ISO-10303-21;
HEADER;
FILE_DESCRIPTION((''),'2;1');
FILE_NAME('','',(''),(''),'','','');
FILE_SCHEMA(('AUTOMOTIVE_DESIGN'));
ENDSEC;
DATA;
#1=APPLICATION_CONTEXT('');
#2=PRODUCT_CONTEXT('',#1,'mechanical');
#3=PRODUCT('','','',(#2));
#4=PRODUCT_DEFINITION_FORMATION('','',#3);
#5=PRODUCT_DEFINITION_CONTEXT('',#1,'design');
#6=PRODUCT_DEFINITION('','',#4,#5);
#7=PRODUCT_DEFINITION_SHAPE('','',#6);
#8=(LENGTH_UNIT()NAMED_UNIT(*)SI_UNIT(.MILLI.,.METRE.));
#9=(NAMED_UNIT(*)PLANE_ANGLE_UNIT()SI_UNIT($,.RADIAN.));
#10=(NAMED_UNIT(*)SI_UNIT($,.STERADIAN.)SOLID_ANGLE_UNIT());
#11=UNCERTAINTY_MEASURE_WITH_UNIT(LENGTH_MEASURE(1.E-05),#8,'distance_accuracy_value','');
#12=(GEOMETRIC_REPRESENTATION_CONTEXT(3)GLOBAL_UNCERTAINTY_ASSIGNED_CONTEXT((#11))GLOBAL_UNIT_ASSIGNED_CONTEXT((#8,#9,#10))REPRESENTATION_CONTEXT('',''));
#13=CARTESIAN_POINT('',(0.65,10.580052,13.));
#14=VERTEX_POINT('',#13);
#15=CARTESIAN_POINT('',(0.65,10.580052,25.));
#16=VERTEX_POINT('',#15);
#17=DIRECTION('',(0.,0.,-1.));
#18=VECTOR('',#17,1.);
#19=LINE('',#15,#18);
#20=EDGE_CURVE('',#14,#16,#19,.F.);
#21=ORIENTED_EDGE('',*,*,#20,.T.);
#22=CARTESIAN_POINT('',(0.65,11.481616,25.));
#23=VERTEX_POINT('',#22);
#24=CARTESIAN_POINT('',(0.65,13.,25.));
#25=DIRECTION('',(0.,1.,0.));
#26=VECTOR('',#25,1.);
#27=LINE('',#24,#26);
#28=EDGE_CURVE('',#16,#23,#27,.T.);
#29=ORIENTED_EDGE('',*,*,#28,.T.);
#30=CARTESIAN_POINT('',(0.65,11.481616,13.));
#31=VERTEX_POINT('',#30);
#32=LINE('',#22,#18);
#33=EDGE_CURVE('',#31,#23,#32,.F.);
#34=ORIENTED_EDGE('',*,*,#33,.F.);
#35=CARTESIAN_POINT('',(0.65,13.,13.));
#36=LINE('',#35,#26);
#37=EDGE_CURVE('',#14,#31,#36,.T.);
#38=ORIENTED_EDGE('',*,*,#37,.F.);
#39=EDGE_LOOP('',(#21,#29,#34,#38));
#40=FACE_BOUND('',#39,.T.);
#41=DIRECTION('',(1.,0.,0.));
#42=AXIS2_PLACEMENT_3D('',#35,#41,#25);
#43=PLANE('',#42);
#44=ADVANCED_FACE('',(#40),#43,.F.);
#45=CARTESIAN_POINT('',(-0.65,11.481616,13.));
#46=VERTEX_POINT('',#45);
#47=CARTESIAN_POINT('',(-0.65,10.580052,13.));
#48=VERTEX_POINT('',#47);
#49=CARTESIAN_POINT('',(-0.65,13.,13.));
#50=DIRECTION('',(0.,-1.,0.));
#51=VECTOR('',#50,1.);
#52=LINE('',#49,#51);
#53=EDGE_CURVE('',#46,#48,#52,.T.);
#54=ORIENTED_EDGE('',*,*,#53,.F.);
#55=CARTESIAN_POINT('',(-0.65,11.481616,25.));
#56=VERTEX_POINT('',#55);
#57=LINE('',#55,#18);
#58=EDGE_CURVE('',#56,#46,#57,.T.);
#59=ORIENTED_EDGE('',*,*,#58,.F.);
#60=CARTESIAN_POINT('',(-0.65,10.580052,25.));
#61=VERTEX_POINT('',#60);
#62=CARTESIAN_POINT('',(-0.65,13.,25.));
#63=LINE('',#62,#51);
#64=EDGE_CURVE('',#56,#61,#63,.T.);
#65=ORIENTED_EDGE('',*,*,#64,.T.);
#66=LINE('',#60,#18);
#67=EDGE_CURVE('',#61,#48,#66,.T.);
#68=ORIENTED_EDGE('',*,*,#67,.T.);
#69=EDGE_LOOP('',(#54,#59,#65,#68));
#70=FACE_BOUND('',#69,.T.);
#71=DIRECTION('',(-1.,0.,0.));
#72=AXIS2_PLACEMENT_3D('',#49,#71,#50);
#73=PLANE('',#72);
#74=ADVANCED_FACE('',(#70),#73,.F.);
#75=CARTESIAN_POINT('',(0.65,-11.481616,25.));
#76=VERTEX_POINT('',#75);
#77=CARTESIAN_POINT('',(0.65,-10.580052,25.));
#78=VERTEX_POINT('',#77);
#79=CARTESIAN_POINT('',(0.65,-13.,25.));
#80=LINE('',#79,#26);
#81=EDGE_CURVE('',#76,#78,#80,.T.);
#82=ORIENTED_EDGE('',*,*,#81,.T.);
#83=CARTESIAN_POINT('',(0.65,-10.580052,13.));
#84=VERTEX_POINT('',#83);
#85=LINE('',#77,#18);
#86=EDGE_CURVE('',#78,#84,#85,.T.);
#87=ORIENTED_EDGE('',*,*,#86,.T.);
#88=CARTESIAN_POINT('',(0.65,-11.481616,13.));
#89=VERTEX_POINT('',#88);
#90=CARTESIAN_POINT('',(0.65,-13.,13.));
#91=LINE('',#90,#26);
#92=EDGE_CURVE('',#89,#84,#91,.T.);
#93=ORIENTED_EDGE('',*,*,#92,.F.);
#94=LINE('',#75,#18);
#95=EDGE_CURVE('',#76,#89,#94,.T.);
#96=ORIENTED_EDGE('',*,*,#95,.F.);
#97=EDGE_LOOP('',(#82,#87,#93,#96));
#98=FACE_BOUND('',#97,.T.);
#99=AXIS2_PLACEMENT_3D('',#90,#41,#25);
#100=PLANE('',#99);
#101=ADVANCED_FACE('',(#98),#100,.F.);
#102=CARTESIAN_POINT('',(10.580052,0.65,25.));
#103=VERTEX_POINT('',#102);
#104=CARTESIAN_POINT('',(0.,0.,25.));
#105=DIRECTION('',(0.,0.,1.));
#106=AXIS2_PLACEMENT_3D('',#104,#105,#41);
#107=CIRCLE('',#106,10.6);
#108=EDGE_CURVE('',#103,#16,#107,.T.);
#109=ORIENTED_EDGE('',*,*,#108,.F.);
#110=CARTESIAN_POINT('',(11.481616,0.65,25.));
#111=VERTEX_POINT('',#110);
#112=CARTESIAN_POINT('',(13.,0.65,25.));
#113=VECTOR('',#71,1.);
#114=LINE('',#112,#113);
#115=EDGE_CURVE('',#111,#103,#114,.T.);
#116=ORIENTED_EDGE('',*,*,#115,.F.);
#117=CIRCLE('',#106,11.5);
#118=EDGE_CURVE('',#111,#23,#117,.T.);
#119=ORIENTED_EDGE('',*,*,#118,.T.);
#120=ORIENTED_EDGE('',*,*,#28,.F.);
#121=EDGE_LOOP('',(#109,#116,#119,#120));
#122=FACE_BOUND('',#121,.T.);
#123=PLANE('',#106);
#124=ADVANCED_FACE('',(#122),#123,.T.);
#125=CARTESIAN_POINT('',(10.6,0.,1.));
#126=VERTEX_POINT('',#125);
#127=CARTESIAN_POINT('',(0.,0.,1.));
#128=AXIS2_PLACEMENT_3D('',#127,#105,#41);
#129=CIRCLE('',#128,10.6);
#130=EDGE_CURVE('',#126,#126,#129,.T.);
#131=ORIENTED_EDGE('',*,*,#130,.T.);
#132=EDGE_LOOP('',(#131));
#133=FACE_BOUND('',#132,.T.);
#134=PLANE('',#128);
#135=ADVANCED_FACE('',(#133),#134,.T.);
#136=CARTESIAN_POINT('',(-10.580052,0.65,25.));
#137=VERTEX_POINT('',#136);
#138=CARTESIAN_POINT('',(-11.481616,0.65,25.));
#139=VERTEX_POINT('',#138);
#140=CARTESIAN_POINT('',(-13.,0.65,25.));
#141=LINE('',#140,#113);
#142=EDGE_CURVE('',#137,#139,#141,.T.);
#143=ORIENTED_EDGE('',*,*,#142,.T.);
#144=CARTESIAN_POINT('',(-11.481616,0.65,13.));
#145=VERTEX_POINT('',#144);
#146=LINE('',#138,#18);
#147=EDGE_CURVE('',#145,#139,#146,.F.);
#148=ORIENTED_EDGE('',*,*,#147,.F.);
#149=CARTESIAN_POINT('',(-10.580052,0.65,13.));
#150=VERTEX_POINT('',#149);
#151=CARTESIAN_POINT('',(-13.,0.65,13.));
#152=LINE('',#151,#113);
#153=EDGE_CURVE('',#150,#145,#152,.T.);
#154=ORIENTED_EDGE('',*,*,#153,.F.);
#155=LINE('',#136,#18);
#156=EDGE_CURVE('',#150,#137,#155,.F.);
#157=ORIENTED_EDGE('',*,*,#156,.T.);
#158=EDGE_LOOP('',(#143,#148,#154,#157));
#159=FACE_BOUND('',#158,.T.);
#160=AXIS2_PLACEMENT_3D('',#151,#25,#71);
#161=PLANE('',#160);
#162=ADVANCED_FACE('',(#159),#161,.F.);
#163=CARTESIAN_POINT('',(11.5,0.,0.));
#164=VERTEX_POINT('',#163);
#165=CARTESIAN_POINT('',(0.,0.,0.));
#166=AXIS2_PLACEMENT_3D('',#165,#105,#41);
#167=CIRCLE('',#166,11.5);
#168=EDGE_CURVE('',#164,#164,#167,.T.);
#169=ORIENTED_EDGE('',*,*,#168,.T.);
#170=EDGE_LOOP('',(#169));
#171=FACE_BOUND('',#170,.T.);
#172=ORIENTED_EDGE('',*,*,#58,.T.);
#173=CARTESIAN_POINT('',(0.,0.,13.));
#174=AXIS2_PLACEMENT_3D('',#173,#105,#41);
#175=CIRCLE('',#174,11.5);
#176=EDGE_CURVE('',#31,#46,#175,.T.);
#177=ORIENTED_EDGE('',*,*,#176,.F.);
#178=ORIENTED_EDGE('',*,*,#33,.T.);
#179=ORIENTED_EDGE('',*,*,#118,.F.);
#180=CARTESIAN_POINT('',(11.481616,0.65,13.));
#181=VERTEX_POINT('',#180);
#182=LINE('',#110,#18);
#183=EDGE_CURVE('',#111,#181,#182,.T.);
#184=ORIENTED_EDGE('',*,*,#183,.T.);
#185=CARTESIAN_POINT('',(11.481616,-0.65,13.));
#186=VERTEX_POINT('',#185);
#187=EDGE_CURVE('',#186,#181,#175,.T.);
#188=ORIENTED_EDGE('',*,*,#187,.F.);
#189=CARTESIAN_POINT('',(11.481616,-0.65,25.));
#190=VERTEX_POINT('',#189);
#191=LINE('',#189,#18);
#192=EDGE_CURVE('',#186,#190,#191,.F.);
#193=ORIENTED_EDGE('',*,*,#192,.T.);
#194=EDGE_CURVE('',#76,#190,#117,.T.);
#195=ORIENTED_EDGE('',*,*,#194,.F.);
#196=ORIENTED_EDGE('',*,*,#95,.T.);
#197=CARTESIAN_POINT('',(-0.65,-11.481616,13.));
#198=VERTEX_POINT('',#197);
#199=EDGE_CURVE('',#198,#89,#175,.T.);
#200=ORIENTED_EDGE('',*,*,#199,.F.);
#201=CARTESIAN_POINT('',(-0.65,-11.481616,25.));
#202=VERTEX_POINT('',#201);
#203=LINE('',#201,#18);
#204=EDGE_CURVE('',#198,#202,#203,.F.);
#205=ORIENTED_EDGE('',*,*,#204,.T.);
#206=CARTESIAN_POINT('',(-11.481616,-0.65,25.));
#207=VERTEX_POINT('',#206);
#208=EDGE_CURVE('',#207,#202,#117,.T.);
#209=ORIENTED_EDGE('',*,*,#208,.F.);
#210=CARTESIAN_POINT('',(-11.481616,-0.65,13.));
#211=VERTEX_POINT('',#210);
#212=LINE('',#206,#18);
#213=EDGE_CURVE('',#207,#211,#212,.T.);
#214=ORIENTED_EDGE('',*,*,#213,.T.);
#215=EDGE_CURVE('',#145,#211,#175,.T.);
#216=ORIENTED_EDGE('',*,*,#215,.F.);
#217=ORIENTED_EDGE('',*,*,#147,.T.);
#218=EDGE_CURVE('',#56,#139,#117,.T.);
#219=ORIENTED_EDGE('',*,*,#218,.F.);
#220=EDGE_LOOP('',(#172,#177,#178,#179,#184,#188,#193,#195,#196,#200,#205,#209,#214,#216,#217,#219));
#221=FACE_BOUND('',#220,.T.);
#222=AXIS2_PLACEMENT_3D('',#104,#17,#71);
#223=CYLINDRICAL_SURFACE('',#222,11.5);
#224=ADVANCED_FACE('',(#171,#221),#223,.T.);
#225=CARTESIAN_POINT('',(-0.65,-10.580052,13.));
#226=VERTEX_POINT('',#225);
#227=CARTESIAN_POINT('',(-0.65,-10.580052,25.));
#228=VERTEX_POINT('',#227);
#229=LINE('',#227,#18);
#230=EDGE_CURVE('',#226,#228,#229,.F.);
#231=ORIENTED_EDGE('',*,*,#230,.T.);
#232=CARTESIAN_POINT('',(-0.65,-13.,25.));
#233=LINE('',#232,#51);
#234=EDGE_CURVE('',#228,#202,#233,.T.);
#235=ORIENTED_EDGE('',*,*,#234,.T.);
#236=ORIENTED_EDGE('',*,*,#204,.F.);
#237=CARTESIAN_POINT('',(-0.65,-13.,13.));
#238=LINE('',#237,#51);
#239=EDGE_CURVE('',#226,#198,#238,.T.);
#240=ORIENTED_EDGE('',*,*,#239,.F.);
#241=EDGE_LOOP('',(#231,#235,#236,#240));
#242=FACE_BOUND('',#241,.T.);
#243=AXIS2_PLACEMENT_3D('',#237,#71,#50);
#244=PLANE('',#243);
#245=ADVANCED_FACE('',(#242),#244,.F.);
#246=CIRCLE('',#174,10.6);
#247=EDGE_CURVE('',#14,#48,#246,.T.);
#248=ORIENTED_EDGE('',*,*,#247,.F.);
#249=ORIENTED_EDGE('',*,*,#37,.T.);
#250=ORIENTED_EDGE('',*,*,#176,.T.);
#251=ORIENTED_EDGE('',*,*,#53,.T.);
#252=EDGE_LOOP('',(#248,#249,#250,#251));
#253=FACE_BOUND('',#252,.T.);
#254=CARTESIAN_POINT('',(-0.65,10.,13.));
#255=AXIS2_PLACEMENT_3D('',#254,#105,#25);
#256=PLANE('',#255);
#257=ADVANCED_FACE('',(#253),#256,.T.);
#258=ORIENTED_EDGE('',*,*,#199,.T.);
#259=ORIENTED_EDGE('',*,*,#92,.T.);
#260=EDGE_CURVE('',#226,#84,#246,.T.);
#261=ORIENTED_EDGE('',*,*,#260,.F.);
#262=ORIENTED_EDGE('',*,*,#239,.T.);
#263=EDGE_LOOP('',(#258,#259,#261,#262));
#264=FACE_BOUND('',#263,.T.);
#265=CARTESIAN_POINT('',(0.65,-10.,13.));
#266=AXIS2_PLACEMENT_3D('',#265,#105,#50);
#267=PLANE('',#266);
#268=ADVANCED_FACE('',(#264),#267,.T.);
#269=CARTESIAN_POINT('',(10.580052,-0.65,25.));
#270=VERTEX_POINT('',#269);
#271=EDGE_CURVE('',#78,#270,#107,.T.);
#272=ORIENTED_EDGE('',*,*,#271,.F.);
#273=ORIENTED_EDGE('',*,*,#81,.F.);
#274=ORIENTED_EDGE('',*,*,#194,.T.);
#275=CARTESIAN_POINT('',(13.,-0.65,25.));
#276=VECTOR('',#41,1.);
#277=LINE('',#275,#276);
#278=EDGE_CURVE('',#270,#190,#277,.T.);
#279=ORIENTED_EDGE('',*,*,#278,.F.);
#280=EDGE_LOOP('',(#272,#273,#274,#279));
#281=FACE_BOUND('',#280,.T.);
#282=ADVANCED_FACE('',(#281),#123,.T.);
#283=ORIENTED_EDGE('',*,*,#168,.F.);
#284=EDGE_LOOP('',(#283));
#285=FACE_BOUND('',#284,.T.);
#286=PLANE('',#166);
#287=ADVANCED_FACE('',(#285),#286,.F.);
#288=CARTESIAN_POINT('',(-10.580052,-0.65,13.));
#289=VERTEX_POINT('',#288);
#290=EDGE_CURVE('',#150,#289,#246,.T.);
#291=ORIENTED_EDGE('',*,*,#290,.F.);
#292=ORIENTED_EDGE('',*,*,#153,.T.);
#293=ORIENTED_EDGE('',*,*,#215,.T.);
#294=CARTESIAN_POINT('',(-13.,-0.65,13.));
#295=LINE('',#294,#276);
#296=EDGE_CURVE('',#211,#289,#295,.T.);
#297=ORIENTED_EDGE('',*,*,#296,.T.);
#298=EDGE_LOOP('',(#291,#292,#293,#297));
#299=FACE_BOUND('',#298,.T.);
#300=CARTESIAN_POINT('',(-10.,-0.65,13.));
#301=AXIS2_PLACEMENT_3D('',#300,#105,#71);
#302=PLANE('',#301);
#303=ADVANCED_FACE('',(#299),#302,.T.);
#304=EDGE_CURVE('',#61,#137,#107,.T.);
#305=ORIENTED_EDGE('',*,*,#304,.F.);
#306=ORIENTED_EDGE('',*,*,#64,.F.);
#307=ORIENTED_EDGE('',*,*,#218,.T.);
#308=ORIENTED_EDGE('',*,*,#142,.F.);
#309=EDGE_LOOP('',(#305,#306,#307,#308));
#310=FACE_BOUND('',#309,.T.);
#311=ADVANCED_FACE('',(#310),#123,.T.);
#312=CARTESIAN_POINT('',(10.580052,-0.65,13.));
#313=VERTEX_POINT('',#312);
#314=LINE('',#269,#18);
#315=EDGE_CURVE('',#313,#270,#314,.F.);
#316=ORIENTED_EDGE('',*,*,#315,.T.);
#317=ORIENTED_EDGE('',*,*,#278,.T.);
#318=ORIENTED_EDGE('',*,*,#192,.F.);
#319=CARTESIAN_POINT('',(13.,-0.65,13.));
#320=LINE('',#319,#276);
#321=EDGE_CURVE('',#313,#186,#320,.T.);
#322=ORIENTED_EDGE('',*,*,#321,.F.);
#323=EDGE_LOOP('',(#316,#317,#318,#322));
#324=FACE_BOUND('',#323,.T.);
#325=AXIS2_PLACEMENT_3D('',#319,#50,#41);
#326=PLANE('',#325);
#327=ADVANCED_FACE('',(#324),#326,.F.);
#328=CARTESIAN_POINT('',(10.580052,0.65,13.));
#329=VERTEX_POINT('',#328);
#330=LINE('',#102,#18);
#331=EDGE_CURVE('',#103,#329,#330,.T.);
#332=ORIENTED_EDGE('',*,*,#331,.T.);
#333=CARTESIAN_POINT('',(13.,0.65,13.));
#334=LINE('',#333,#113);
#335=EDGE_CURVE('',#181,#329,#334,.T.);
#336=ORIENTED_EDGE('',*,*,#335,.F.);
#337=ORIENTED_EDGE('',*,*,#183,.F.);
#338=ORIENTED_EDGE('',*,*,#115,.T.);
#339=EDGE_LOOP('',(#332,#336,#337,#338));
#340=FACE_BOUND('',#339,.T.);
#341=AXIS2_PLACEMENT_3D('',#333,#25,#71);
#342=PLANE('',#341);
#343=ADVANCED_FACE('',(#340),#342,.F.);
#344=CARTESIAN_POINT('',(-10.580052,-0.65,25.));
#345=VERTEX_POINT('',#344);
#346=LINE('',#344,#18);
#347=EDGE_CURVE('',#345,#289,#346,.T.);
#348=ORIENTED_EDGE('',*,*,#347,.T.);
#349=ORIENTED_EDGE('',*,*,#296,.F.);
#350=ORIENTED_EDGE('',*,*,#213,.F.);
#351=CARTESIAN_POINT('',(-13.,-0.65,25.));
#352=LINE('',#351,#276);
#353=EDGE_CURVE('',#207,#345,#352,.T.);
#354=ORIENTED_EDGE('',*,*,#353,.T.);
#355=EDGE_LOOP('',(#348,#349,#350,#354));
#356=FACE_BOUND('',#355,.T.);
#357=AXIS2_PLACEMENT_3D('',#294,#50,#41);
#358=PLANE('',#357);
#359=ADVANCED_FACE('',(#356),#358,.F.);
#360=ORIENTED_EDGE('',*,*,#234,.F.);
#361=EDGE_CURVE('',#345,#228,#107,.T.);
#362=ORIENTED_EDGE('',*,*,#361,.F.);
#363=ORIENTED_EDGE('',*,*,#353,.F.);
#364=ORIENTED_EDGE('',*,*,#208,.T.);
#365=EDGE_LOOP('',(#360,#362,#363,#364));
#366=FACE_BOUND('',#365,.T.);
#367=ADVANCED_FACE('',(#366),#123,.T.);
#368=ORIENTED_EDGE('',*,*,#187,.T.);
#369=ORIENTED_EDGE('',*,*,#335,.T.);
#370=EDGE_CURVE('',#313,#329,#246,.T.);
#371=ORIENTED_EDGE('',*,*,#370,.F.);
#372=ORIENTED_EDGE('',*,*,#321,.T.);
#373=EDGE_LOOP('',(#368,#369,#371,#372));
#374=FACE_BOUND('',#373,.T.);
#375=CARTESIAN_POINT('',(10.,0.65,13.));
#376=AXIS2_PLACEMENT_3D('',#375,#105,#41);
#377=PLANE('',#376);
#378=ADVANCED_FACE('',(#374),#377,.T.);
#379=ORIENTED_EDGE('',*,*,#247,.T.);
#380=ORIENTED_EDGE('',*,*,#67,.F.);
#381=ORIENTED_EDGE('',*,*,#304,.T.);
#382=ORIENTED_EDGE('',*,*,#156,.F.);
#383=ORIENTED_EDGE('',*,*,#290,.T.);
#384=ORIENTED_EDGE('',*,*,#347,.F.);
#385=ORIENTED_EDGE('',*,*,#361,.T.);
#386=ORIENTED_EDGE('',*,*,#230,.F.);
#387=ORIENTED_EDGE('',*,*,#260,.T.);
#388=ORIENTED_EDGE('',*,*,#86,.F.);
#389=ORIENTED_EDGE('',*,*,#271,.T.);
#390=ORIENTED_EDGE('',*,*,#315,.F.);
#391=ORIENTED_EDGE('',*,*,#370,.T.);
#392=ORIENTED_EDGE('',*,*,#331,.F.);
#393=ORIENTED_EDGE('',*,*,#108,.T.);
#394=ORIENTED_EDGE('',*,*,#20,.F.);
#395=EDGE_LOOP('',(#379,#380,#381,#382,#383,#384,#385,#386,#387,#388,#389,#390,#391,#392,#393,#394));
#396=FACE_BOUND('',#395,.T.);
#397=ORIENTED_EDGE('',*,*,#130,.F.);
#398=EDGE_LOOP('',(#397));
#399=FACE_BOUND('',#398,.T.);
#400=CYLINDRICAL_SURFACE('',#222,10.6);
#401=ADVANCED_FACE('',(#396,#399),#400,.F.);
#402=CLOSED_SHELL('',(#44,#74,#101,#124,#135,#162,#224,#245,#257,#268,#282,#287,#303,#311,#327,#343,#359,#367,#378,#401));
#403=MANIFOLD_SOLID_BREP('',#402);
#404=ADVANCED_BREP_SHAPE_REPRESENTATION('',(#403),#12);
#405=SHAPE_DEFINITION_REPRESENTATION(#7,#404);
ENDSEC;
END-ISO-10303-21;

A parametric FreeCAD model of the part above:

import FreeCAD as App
import Part
import Sketcher
from FreeCAD import Vector
Q = App.Units.Quantity

doc = App.newDocument("Part")
body = doc.addObject("PartDesign::Body", "Body")

# Sketch on XY plane
sketch1 = body.newObject("Sketcher::SketchObject", "Sketch")
sketch1.AttachmentSupport = (doc.getObject("XY_Plane"), [""])
sketch1.MapMode = "FlatFace"
sketch1.addGeometry([
    Part.Circle(Vector(0, 0, 0), Vector(0, 0, 1), 12),
    Part.Circle(Vector(0, 0, 0), Vector(0, 0, 1), 11),
], False)
sketch1.addConstraint([
    Sketcher.Constraint("Coincident", 0, 3, -1, 1),
    Sketcher.Constraint("Coincident", 1, 3, -1, 1),
    Sketcher.Constraint("Diameter", 0, Q("23 mm")),
    Sketcher.Constraint("Diameter", 1, Q("21.2 mm")),
])
pad1 = body.newObject("PartDesign::Pad", "Pad")
pad1.Profile = sketch1
pad1.Length = 25

# Sketch on XY plane
sketch2 = body.newObject("Sketcher::SketchObject", "Sketch001")
sketch2.AttachmentSupport = (doc.getObject("XY_Plane"), [""])
sketch2.MapMode = "FlatFace"
sketch2.addGeometry(Part.Circle(Vector(0, 0, 0), Vector(0, 0, 1), 12), False)
sketch2.addConstraint([
    Sketcher.Constraint("Coincident", 0, 3, -1, 1),
    Sketcher.Constraint("Diameter", 0, Q("23 mm")),
])
pad2 = body.newObject("PartDesign::Pad", "Pad001")
pad2.Profile = sketch2
pad2.Length = 1

# Sketch on XY plane
sketch3 = body.newObject("Sketcher::SketchObject", "Sketch002")
sketch3.AttachmentSupport = (doc.getObject("XY_Plane"), [""])
sketch3.MapMode = "FlatFace"
sketch3.AttachmentOffset = App.Placement(Vector(0, 0, 25), App.Rotation())
sketch3.addGeometry([
    Part.LineSegment(Vector(10, 0.7, 0), Vector(10, -0.7, 0)),
    Part.LineSegment(Vector(10, -0.7, 0), Vector(13, -0.7, 0)),
    Part.LineSegment(Vector(13, -0.7, 0), Vector(13, 0.7, 0)),
    Part.LineSegment(Vector(13, 0.7, 0), Vector(10, 0.7, 0)),
], False)
sketch3.addConstraint([
    Sketcher.Constraint("Coincident", 0, 2, 1, 1),
    Sketcher.Constraint("Coincident", 1, 2, 2, 1),
    Sketcher.Constraint("Coincident", 2, 2, 3, 1),
    Sketcher.Constraint("Coincident", 3, 2, 0, 1),
    Sketcher.Constraint("Vertical", 0),
    Sketcher.Constraint("Horizontal", 1),
    Sketcher.Constraint("Vertical", 2),
    Sketcher.Constraint("Horizontal", 3),
    Sketcher.Constraint("DistanceX", 1, 1, 1, 2, Q("3 mm")),
    Sketcher.Constraint("DistanceY", 0, 2, 0, 1, Q("1.3 mm")),
    Sketcher.Constraint("DistanceX", -1, 1, 0, 2, Q("10 mm")),
    Sketcher.Constraint("DistanceY", 0, 2, -1, 1, Q("0.65 mm")),
])
pocket1 = body.newObject("PartDesign::Pocket", "Pocket")
pocket1.Profile = sketch3
pocket1.Length = 12
doc.recompute()

polarpattern = body.newObject("PartDesign::PolarPattern", "PolarPattern")
polarpattern.Originals = [pocket1]
polarpattern.Axis = (doc.getObject("Z_Axis"), [""])
polarpattern.Angle = 360
polarpattern.Occurrences = 4
body.Tip = polarpattern

doc.recompute()
